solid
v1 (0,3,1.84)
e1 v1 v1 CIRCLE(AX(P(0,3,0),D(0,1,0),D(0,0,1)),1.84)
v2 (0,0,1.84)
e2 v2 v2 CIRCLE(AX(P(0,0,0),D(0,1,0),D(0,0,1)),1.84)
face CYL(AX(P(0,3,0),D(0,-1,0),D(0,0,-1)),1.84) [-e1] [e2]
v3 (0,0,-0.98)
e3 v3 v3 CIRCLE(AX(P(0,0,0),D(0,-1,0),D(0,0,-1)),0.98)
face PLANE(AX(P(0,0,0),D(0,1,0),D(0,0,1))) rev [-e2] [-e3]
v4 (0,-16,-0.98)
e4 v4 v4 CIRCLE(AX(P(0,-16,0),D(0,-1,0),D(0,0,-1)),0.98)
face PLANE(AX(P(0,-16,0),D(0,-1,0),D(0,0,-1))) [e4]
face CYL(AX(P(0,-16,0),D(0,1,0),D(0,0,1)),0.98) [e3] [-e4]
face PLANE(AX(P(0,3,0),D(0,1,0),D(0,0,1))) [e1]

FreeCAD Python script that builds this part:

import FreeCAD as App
import Part
import Sketcher
from FreeCAD import Vector

doc = App.newDocument("Part")
params = doc.addObject("Spreadsheet::Sheet", "Params")
for row, (alias, value) in enumerate([
    ("sketch1_diameter", "3.68 mm"),
    ("pad1_length", "3 mm"),
    ("sketch2_diameter", "1.96 mm"),
    ("pad2_length", "16 mm"),
], start=1):
    params.set(f"A{row}", alias)
    params.set(f"B{row}", "=" + value)
    params.setAlias(f"B{row}", alias)

body = doc.addObject("PartDesign::Body", "Body")

# Sketch on XZ plane
sketch1 = body.newObject("Sketcher::SketchObject", "Sketch")
sketch1.AttachmentSupport = (doc.getObject("XZ_Plane"), [""])
sketch1.MapMode = "FlatFace"
sketch1.addGeometry(Part.Circle(Vector(0, 0, 0), Vector(0, 0, 1), 1.84), False)
sketch1.addConstraint([
    Sketcher.Constraint("Coincident", 0, 3, -1, 1),
    Sketcher.Constraint("Diameter", 0, 3.68),
])
sketch1.setExpression("Constraints[1]", "Params.sketch1_diameter")
pad1 = body.newObject("PartDesign::Pad", "Pad")
pad1.Profile = sketch1
pad1.setExpression("Length", "Params.pad1_length")
pad1.Reversed = True

# Sketch on XZ plane
sketch2 = body.newObject("Sketcher::SketchObject", "Sketch001")
sketch2.AttachmentSupport = (doc.getObject("XZ_Plane"), [""])
sketch2.MapMode = "FlatFace"
sketch2.addGeometry(Part.Circle(Vector(0, 0, 0), Vector(0, 0, 1), 0.98), False)
sketch2.addConstraint([
    Sketcher.Constraint("Coincident", 0, 3, -1, 1),
    Sketcher.Constraint("Diameter", 0, 1.96),
])
sketch2.setExpression("Constraints[1]", "Params.sketch2_diameter")
pad2 = body.newObject("PartDesign::Pad", "Pad001")
pad2.Profile = sketch2
pad2.setExpression("Length", "Params.pad2_length")

doc.recompute()
